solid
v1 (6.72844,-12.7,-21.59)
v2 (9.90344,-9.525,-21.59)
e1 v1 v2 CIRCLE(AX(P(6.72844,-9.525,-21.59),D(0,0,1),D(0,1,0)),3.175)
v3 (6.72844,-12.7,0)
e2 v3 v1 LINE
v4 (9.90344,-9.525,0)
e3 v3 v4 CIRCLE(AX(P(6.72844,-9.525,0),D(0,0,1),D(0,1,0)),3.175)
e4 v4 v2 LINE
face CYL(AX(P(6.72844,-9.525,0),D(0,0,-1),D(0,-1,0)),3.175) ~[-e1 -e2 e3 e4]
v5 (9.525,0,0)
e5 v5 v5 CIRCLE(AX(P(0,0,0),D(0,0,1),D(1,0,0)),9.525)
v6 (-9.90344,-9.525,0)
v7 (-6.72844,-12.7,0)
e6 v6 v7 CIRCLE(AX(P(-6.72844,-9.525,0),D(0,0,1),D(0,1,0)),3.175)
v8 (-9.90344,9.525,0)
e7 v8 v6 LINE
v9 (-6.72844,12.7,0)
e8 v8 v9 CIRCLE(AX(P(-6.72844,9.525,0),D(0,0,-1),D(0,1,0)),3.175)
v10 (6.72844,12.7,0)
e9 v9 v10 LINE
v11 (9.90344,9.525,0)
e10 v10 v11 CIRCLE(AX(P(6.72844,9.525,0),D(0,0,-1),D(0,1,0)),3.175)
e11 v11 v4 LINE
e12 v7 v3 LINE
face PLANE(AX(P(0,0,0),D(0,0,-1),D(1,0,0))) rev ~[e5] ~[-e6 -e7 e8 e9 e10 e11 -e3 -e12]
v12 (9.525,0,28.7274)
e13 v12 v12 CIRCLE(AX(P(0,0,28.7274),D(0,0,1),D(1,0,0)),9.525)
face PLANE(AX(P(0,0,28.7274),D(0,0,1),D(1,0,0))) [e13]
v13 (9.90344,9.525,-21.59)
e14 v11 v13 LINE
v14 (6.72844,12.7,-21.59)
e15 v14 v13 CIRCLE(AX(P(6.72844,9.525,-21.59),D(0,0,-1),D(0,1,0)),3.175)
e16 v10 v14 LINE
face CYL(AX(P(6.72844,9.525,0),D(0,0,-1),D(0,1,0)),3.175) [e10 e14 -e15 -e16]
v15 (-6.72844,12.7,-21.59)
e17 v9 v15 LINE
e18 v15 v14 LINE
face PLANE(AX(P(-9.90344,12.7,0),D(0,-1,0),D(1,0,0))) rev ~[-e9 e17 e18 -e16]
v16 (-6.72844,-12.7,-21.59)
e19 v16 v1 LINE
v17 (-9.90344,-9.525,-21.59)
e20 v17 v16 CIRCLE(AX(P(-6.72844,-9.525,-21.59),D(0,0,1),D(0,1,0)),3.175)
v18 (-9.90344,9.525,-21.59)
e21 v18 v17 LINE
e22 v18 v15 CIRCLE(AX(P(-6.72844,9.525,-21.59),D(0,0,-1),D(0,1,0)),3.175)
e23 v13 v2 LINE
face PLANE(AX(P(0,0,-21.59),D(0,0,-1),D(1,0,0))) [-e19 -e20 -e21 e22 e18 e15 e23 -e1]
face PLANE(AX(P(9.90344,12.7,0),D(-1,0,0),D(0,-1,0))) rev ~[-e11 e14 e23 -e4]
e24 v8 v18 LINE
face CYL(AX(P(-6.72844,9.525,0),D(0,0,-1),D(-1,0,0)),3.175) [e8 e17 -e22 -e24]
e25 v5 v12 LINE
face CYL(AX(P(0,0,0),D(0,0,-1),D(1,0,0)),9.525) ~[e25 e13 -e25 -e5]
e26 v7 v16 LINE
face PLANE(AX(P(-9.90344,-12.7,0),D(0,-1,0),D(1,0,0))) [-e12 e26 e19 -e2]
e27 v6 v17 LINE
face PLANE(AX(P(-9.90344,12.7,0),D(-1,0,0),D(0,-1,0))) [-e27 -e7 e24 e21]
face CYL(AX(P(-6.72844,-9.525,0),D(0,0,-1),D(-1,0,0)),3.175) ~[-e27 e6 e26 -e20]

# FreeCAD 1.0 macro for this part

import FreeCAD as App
import Part
import Sketcher
from FreeCAD import Vector
Q = App.Units.Quantity


def edges_at(feature, points):
    """Names of the edges that pass closest to the given points."""
    edges = feature.Shape.Edges
    near = lambda p: min(range(len(edges)), key=lambda i: edges[i].distToShape(Part.Vertex(*p))[0])
    return sorted({f"Edge{near(p) + 1}" for p in points})

doc = App.newDocument("Part")
body = doc.addObject("PartDesign::Body", "Body")

sketch1 = body.newObject("Sketcher::SketchObject", "Sketch")
sketch1.AttachmentSupport = (doc.getObject("XY_Plane"), [""])
sketch1.MapMode = "FlatFace"
sketch1.addGeometry(Part.Circle(Vector(0, 0, 0), Vector(0, 0, 1), 9.525), False)
sketch1.addConstraint(Sketcher.Constraint("Coincident", 0, 3, -1, 1))
sketch1.addConstraint(Sketcher.Constraint("Diameter", 0, Q("0.75 in")))
pad1 = body.newObject("PartDesign::Pad", "Pad")
pad1.Profile = sketch1
pad1.Length = Q("1.131 in")

sketch2 = body.newObject("Sketcher::SketchObject", "Sketch001")
sketch2.AttachmentSupport = (doc.getObject("XY_Plane"), [""])
sketch2.MapMode = "FlatFace"
sketch2.addGeometry(Part.LineSegment(Vector(-9.90344, -12.7, 0), Vector(-9.90344, 12.7, 0)), False)
sketch2.addGeometry(Part.LineSegment(Vector(-9.90344, 12.7, 0), Vector(9.90344, 12.7, 0)), False)
sketch2.addGeometry(Part.LineSegment(Vector(9.90344, 12.7, 0), Vector(9.90344, -12.7, 0)), False)
sketch2.addGeometry(Part.LineSegment(Vector(9.90344, -12.7, 0), Vector(-9.90344, -12.7, 0)), False)
sketch2.addConstraint(Sketcher.Constraint("Coincident", 0, 2, 1, 1))
sketch2.addConstraint(Sketcher.Constraint("Coincident", 1, 2, 2, 1))
sketch2.addConstraint(Sketcher.Constraint("Coincident", 2, 2, 3, 1))
sketch2.addConstraint(Sketcher.Constraint("Coincident", 3, 2, 0, 1))
sketch2.addConstraint(Sketcher.Constraint("Vertical", 0))
sketch2.addConstraint(Sketcher.Constraint("Horizontal", 1))
sketch2.addConstraint(Sketcher.Constraint("Vertical", 2))
sketch2.addConstraint(Sketcher.Constraint("Horizontal", 3))
sketch2.addConstraint(Sketcher.Constraint("Symmetric", 0, 2, 2, 2, -1, 1))
sketch2.addConstraint(Sketcher.Constraint("DistanceY", 0, 1, 0, 2, Q("1 in")))
sketch2.addConstraint(Sketcher.Constraint("DistanceX", 1, 1, 1, 2, 19.80688))
pad2 = body.newObject("PartDesign::Pad", "Pad001")
pad2.Profile = sketch2
pad2.Length = Q("0.85 in")
pad2.Reversed = True
doc.recompute()

fillet = body.newObject("PartDesign::Fillet", "Fillet")
fillet.Base = (pad2, edges_at(pad2, [
    (9.903, -12.7, -10.795),
    (-9.903, -12.7, -10.795),
    (9.903, 12.7, -10.795),
    (-9.903, 12.7, -10.795),
]))
fillet.Radius = Q("0.125 in")

doc.recompute()
